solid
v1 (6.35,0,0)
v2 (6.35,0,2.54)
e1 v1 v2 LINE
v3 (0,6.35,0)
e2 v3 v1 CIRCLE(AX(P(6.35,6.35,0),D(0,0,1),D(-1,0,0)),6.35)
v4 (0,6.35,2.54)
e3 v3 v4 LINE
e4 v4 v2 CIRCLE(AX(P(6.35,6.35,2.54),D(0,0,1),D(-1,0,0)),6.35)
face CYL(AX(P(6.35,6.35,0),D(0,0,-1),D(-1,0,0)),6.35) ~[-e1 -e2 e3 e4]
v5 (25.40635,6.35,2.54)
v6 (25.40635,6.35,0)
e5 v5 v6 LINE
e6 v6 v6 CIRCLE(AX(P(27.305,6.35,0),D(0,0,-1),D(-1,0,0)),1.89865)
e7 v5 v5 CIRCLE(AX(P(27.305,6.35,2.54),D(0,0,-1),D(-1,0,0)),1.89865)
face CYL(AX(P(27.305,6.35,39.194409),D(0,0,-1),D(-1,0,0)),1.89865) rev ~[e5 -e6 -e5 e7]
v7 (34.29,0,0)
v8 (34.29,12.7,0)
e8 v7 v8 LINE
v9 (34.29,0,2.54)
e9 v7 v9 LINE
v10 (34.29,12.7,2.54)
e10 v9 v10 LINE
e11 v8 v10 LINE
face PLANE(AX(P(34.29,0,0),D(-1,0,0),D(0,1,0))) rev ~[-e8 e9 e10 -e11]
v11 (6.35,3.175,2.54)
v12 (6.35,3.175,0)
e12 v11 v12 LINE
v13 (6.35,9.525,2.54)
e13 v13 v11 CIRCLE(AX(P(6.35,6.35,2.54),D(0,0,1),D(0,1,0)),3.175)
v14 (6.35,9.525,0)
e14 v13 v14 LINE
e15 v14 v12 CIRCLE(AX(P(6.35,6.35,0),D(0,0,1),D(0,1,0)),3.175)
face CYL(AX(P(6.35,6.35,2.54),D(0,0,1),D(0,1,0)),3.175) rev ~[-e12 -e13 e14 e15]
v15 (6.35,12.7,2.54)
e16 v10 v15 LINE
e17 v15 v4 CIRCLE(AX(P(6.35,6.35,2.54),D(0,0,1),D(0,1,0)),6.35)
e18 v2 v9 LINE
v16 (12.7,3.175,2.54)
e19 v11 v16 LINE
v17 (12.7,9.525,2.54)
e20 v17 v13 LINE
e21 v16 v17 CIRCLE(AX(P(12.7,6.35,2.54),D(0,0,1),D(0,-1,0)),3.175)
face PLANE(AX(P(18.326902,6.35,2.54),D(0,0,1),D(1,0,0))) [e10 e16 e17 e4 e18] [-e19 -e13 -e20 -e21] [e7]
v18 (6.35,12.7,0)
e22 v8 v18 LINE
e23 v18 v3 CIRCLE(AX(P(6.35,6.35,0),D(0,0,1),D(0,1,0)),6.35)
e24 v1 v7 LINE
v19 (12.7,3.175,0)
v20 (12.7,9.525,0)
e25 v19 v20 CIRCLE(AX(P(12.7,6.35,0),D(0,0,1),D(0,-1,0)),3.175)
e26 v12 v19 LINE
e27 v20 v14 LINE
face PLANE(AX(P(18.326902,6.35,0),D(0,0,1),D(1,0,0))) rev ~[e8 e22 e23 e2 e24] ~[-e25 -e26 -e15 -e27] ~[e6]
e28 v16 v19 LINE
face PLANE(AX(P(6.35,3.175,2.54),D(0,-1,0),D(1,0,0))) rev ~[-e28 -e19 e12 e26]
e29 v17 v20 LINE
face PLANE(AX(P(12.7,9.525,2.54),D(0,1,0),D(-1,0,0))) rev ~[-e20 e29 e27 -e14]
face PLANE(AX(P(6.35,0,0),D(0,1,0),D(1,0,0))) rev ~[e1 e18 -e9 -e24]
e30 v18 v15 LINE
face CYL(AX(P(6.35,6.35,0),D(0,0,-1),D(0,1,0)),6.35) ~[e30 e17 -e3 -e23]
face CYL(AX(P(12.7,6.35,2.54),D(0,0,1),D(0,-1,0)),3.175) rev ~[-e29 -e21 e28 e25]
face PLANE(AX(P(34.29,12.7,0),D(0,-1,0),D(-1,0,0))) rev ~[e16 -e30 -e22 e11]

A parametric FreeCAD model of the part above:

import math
import FreeCAD as App
import Part
import Sketcher
from FreeCAD import Vector
Q = App.Units.Quantity

doc = App.newDocument("Part")
body = doc.addObject("PartDesign::Body", "Body")

# Sketch on XY plane
sketch1 = doc.addObject("Sketcher::SketchObject", "Sketch")
body.addObject(sketch1)
sketch1.AttachmentSupport = (doc.XY_Plane, [""])
sketch1.MapMode = "FlatFace"
sketch1.addGeometry(Part.ArcOfCircle(Part.Circle(Vector(6.35, 6.35, 0), Vector(0, 0, 1), 6.35), math.radians(180), math.radians(270)), False)
sketch1.addGeometry(Part.LineSegment(Vector(6.35, 0, 0), Vector(34.29, 0, 0)), False)
sketch1.addGeometry(Part.LineSegment(Vector(34.29, 0, 0), Vector(34.29, 12.7, 0)), False)
sketch1.addGeometry(Part.LineSegment(Vector(34.29, 12.7, 0), Vector(6.35, 12.7, 0)), False)
sketch1.addGeometry(Part.ArcOfCircle(Part.Circle(Vector(6.35, 6.35, 0), Vector(0, 0, 1), 6.35), math.radians(90), math.radians(180)), False)
sketch1.addConstraint(Sketcher.Constraint("Tangent", 0, 2, 1, 1))
sketch1.addConstraint(Sketcher.Constraint("Coincident", 1, 2, 2, 1))
sketch1.addConstraint(Sketcher.Constraint("Coincident", 2, 2, 3, 1))
sketch1.addConstraint(Sketcher.Constraint("Tangent", 3, 2, 4, 1))
sketch1.addConstraint(Sketcher.Constraint("Tangent", 4, 2, 0, 1))
sketch1.addConstraint(Sketcher.Constraint("Horizontal", 1))
sketch1.addConstraint(Sketcher.Constraint("Vertical", 2))
sketch1.addConstraint(Sketcher.Constraint("Horizontal", 3))
sketch1.addConstraint(Sketcher.Constraint("Equal", 0, 4))
sketch1.addConstraint(Sketcher.Constraint("PointOnObject", 0, 2, -1))
sketch1.addConstraint(Sketcher.Constraint("PointOnObject", 4, 2, -2))
sketch1.addConstraint(Sketcher.Constraint("Horizontal", 0, 3, 4, 2))
sketch1.addConstraint(Sketcher.Constraint("Radius", 0, Q("0.25 in")))
sketch1.addConstraint(Sketcher.Constraint("DistanceX", 1, 1, 1, 2, Q("1.1 in")))
pad1 = doc.addObject("PartDesign::Pad", "Pad")
body.addObject(pad1)
pad1.Profile = sketch1
pad1.Length = Q("0.1 in")

# Sketch on XY plane
sketch2 = doc.addObject("Sketcher::SketchObject", "Sketch001")
body.addObject(sketch2)
sketch2.AttachmentSupport = (doc.XY_Plane, [""])
sketch2.MapMode = "FlatFace"
sketch2.AttachmentOffset = App.Placement(Vector(0, 0, 0.1 * 25.4), App.Rotation())
sketch2.addGeometry(Part.LineSegment(Vector(12.7, 9.525, 0), Vector(6.35, 9.525, 0)), False)
sketch2.addGeometry(Part.ArcOfCircle(Part.Circle(Vector(6.35, 6.35, 0), Vector(0, 0, 1), 3.175), math.radians(90), math.radians(270)), False)
sketch2.addGeometry(Part.LineSegment(Vector(6.35, 3.175, 0), Vector(12.7, 3.175, 0)), False)
sketch2.addGeometry(Part.ArcOfCircle(Part.Circle(Vector(12.7, 6.35, 0), Vector(0, 0, 1), 3.175), math.radians(-90), math.radians(90)), False)
sketch2.addConstraint(Sketcher.Constraint("Tangent", 0, 2, 1, 1))
sketch2.addConstraint(Sketcher.Constraint("Tangent", 1, 2, 2, 1))
sketch2.addConstraint(Sketcher.Constraint("Tangent", 2, 2, 3, 1))
sketch2.addConstraint(Sketcher.Constraint("Tangent", 3, 2, 0, 1))
sketch2.addConstraint(Sketcher.Constraint("Horizontal", 0))
sketch2.addConstraint(Sketcher.Constraint("Horizontal", 2))
sketch2.addConstraint(Sketcher.Constraint("Radius", 1, Q("0.125 in")))
sketch2.addConstraint(Sketcher.Constraint("DistanceX", 0, 2, 0, 1, Q("0.25 in")))
sketch2.addConstraint(Sketcher.Constraint("DistanceX", -1, 1, 3, 3, Q("0.5 in")))
sketch2.addConstraint(Sketcher.Constraint("DistanceY", -1, 1, 1, 3, Q("0.25 in")))
pocket1 = doc.addObject("PartDesign::Pocket", "Pocket")
body.addObject(pocket1)
pocket1.Profile = sketch2
pocket1.Type = "ThroughAll"

# Sketch on XY plane
sketch3 = doc.addObject("Sketcher::SketchObject", "Sketch002")
body.addObject(sketch3)
sketch3.AttachmentSupport = (doc.XY_Plane, [""])
sketch3.MapMode = "FlatFace"
sketch3.AttachmentOffset = App.Placement(Vector(0, 0, 0.1 * 25.4), App.Rotation())
sketch3.addGeometry(Part.Circle(Vector(27.305, 6.35, 0), Vector(0, 0, 1), 1.89865), False)
sketch3.addConstraint(Sketcher.Constraint("Diameter", 0, Q("0.1495 in")))
sketch3.addConstraint(Sketcher.Constraint("DistanceY", -1, 1, 0, 3, Q("0.25 in")))
sketch3.addConstraint(Sketcher.Constraint("DistanceX", -1, 1, 0, 3, Q("1.075 in")))
doc.recompute()
hole = doc.addObject("PartDesign::Hole", "Hole")
body.addObject(hole)
hole.Profile = sketch3
hole.ThreadType = "None"
hole.Diameter = Q("0.1495 in")
hole.DepthType = "ThroughAll"

doc.recompute()
